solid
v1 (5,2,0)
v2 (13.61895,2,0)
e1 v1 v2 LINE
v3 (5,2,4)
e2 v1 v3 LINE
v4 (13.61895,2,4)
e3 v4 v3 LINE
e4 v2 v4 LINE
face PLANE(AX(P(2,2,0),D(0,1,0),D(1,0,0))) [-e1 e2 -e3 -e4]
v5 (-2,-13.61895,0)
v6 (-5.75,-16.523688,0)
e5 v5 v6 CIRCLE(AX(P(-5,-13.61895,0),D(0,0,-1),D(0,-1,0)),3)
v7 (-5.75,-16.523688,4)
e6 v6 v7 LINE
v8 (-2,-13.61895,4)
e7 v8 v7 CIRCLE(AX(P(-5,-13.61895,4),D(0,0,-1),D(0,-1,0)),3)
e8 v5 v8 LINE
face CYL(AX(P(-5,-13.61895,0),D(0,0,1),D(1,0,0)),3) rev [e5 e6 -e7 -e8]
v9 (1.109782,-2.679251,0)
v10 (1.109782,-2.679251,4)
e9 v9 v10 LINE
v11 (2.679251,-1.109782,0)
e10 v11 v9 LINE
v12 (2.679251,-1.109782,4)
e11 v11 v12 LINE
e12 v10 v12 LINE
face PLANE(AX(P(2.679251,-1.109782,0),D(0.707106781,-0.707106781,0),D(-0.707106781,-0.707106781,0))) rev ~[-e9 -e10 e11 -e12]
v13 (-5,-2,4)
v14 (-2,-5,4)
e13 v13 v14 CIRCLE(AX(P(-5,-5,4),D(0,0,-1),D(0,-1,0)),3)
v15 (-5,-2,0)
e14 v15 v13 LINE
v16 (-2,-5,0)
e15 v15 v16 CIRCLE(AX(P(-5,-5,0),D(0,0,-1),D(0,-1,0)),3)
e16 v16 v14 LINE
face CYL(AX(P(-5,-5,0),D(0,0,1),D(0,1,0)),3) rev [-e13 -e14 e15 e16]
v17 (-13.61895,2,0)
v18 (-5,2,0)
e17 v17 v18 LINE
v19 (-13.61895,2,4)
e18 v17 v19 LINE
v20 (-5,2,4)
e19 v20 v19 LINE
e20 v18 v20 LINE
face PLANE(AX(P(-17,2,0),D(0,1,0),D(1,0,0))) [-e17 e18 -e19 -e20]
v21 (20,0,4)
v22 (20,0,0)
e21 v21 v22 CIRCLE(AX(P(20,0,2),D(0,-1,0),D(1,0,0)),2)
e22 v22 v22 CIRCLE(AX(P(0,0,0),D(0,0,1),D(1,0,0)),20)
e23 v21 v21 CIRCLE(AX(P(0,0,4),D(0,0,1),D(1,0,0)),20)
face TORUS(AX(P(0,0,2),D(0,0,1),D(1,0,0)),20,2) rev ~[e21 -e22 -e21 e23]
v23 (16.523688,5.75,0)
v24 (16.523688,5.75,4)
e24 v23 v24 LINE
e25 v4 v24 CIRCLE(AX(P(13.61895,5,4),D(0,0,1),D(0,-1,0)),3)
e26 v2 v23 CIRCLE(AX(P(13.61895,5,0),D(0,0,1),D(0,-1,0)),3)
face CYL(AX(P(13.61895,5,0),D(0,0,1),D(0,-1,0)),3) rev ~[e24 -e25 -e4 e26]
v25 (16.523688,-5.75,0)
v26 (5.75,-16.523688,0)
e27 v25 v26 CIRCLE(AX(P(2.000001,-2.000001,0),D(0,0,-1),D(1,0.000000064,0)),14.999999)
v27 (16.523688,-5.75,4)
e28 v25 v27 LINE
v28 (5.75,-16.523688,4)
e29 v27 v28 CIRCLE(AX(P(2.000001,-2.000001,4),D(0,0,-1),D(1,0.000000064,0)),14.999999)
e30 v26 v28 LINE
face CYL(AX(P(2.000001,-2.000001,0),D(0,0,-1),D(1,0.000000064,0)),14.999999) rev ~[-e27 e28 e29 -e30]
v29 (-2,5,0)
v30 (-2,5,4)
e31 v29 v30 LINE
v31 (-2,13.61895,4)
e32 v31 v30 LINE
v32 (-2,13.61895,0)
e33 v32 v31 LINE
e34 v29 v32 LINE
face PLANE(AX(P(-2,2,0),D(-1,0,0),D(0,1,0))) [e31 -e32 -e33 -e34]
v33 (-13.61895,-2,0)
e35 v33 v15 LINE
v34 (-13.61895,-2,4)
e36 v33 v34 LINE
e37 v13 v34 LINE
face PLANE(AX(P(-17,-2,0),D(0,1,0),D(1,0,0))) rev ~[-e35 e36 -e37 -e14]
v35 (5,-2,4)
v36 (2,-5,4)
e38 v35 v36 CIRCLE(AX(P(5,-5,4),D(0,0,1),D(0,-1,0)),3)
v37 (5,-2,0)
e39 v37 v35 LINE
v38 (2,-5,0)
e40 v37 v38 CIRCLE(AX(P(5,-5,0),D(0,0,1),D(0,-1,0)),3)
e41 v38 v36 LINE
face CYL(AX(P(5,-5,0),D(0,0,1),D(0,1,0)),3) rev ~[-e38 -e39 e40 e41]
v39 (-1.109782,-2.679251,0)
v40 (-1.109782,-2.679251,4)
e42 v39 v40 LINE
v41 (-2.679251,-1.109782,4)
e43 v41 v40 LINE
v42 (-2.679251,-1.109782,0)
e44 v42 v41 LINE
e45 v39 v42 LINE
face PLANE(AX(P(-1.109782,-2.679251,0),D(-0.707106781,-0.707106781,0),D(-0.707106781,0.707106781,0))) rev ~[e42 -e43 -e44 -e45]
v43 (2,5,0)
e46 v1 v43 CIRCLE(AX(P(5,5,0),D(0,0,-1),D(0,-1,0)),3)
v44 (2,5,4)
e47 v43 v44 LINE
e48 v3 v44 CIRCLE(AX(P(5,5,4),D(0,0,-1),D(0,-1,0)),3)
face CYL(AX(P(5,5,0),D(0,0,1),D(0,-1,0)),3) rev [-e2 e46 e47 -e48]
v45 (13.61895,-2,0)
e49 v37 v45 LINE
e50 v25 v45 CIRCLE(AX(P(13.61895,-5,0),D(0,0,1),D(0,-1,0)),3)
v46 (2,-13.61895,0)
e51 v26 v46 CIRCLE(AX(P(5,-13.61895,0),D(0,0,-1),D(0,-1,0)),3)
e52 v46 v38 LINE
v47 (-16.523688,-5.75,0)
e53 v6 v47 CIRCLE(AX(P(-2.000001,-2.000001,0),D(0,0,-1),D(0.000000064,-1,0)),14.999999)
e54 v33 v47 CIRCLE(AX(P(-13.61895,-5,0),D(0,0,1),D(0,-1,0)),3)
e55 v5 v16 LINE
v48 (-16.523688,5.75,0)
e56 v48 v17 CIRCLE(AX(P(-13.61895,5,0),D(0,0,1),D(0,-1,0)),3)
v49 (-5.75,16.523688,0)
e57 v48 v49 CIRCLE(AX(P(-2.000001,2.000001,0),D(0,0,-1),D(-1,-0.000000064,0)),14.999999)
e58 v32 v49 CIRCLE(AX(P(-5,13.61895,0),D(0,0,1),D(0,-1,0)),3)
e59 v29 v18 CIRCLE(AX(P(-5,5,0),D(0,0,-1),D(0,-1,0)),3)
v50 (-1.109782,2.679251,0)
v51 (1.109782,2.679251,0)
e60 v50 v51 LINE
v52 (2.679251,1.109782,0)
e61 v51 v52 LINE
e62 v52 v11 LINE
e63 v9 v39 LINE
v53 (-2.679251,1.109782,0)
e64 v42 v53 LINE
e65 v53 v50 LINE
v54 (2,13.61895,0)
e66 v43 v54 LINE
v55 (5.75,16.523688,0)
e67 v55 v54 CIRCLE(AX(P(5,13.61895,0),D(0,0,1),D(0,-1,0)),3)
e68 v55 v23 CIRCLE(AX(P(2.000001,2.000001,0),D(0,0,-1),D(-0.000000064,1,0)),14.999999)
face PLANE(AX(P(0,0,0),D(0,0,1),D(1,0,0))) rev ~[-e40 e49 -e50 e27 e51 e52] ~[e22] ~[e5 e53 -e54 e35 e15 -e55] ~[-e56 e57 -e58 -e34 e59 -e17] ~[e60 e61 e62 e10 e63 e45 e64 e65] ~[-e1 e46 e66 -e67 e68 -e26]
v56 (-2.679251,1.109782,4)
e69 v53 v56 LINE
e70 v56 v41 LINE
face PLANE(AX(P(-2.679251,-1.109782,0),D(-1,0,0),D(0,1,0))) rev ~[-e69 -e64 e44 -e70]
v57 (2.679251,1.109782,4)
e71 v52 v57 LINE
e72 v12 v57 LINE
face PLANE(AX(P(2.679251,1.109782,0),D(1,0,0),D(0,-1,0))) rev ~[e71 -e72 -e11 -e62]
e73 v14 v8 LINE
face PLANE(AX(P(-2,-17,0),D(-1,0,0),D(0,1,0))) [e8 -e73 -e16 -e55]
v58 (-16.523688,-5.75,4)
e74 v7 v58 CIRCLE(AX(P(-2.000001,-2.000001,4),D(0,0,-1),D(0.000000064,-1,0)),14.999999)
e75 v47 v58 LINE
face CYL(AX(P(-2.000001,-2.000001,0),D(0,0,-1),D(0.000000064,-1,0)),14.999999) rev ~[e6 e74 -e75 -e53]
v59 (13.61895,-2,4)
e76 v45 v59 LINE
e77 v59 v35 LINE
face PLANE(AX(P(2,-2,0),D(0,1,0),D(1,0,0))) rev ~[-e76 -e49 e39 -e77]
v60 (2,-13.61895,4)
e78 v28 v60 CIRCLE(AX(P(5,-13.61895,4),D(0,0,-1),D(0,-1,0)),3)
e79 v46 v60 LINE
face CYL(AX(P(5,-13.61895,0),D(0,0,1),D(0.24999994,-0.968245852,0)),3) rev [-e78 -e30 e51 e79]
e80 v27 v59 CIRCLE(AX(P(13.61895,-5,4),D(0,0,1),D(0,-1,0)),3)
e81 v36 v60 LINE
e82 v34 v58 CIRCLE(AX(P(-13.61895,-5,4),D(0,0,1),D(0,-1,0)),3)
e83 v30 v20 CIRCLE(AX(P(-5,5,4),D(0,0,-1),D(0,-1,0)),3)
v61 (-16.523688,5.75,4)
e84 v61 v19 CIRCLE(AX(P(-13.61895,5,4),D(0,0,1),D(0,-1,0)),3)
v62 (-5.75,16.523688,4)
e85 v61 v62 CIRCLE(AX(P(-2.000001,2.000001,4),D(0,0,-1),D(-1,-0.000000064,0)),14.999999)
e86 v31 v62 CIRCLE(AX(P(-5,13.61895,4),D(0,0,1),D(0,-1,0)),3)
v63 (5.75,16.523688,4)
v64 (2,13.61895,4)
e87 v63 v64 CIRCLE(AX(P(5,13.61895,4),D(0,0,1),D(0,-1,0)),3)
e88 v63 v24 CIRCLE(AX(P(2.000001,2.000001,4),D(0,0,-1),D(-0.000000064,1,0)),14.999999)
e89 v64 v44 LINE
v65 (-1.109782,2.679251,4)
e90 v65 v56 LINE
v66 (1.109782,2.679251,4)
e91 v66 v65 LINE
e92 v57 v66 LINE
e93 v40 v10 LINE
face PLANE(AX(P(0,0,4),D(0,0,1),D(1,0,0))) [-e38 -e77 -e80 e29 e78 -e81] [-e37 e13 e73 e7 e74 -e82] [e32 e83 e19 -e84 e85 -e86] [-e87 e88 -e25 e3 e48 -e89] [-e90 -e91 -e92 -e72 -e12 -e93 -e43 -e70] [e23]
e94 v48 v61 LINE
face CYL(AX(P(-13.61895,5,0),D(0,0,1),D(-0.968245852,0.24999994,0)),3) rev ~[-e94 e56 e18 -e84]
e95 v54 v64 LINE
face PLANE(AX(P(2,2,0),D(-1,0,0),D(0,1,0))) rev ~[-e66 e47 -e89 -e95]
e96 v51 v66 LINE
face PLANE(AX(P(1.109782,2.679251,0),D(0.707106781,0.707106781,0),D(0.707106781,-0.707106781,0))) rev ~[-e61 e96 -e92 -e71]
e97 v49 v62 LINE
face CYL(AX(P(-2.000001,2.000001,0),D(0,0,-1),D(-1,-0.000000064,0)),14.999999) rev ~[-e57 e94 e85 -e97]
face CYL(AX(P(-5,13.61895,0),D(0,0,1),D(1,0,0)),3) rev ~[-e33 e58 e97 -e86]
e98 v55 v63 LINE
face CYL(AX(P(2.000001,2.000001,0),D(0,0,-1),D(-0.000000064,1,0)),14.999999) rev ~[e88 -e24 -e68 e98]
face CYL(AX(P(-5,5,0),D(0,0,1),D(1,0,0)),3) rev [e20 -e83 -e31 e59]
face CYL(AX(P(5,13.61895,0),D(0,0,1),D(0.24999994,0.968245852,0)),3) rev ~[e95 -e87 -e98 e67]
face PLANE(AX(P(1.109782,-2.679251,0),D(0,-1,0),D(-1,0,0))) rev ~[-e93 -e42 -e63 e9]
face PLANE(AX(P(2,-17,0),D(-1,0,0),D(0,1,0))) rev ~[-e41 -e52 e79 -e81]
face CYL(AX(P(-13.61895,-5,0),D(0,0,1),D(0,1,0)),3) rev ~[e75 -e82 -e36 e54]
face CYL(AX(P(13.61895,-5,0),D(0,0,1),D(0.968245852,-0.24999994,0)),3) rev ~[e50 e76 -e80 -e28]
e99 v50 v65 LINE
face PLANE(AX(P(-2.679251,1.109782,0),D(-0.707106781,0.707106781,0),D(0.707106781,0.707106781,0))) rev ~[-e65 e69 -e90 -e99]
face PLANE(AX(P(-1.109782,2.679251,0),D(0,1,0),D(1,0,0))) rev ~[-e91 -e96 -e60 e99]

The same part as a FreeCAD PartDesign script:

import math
import FreeCAD as App
import Part
import Sketcher

V = App.Vector


def edges_at(feature, points):
    """Names of the edges that pass closest to the given points."""
    edges = feature.Shape.Edges
    near = lambda p: min(range(len(edges)), key=lambda i: edges[i].distToShape(Part.Vertex(*p))[0])
    return sorted({f"Edge{near(p) + 1}" for p in points})

doc = App.newDocument("Part")
body = doc.addObject("PartDesign::Body", "Body")

# Sketch on XZ plane
sketch1 = doc.addObject("Sketcher::SketchObject", "Sketch")
body.addObject(sketch1)
sketch1.AttachmentSupport = (doc.XZ_Plane, [""])
sketch1.MapMode = "FlatFace"
sketch1.addGeometry(Part.Circle(V(20, 2, 0), V(0, 0, 1), 2), False)
sketch1.addConstraint([
    Sketcher.Constraint("Diameter", 0, 4.0),
    Sketcher.Constraint("DistanceX", -1, 1, 0, 3, 20.0),
    Sketcher.Constraint("DistanceY", -1, 1, 0, 3, 2.0),
])
revolution = doc.addObject("PartDesign::Revolution", "Revolution")
body.addObject(revolution)
revolution.Profile = sketch1
revolution.ReferenceAxis = (sketch1, ["V_Axis"])
revolution.Angle = 360
body2 = doc.addObject("PartDesign::Body", "Body001")

# Sketch on XY plane
sketch2 = doc.addObject("Sketcher::SketchObject", "Sketch001")
body2.addObject(sketch2)
sketch2.AttachmentSupport = (doc.getObject("XY_Plane001"), [""])
sketch2.MapMode = "FlatFace"
sketch2.addGeometry(Part.Circle(V(0, 0, 0), V(0, 0, 1), 20), False)
sketch2.addConstraint([
    Sketcher.Constraint("Coincident", 0, 3, -1, 1),
    Sketcher.Constraint("Diameter", 0, 40.0),
])
pad1 = doc.addObject("PartDesign::Pad", "Pad")
body2.addObject(pad1)
pad1.Profile = sketch2
pad1.Length = 4

# Sketch on XY plane
sketch3 = doc.addObject("Sketcher::SketchObject", "Sketch002")
body2.addObject(sketch3)
sketch3.AttachmentSupport = (doc.getObject("XY_Plane001"), [""])
sketch3.MapMode = "FlatFace"
sketch3.addGeometry([
    Part.LineSegment(V(2, -17, 0), V(2, -2, 0)),  # 0
    Part.LineSegment(V(2, -2, 0), V(17, -2, 0)),  # 1
    Part.ArcOfCircle(Part.Circle(V(2, -2, 0), V(0, 0, 1), 15), math.radians(-90), math.radians(0)),  # 2
    Part.LineSegment(V(-2, -2, 0), V(-2, -17, 0)),  # 3
    Part.ArcOfCircle(Part.Circle(V(-2, -2, 0), V(0, 0, 1), 15), math.radians(180), math.radians(270)),  # 4
    Part.LineSegment(V(-17, -2, 0), V(-2, -2, 0)),  # 5
    Part.LineSegment(V(17, 2, 0), V(2, 2, 0)),  # 6
    Part.LineSegment(V(2, 2, 0), V(2, 17, 0)),  # 7
    Part.ArcOfCircle(Part.Circle(V(2, 2, 0), V(0, 0, 1), 15), math.radians(0), math.radians(90)),  # 8
    Part.LineSegment(V(-2, 17, 0), V(-2, 2, 0)),  # 9
    Part.LineSegment(V(-2, 2, 0), V(-17, 2, 0)),  # 10
    Part.ArcOfCircle(Part.Circle(V(-2, 2, 0), V(0, 0, 1), 15), math.radians(90), math.radians(180)),  # 11
], False)
sketch3.addConstraint([
    Sketcher.Constraint("Coincident", 0, 2, 1, 1),
    Sketcher.Constraint("Coincident", 1, 2, 2, 2),
    Sketcher.Constraint("Coincident", 2, 1, 0, 1),
    Sketcher.Constraint("Coincident", 3, 2, 4, 2),
    Sketcher.Constraint("Coincident", 4, 1, 5, 1),
    Sketcher.Constraint("Coincident", 5, 2, 3, 1),
    Sketcher.Constraint("Coincident", 6, 2, 7, 1),
    Sketcher.Constraint("Coincident", 7, 2, 8, 2),
    Sketcher.Constraint("Coincident", 8, 1, 6, 1),
    Sketcher.Constraint("Coincident", 9, 2, 10, 1),
    Sketcher.Constraint("Coincident", 10, 2, 11, 2),
    Sketcher.Constraint("Coincident", 11, 1, 9, 1),
    Sketcher.Constraint("Vertical", 0),
    Sketcher.Constraint("Horizontal", 1),
    Sketcher.Constraint("Vertical", 3),
    Sketcher.Constraint("Horizontal", 5),
    Sketcher.Constraint("Horizontal", 6),
    Sketcher.Constraint("Vertical", 7),
    Sketcher.Constraint("Vertical", 9),
    Sketcher.Constraint("Horizontal", 10),
    Sketcher.Constraint("Coincident", 0, 2, 2, 3),
    Sketcher.Constraint("Coincident", 5, 2, 4, 3),
    Sketcher.Constraint("Coincident", 6, 2, 8, 3),
    Sketcher.Constraint("Coincident", 9, 2, 11, 3),
    Sketcher.Constraint("Equal", 2, 4),
    Sketcher.Constraint("Equal", 4, 8),
    Sketcher.Constraint("Equal", 8, 11),
    Sketcher.Constraint("Symmetric", 4, 3, 8, 3, -1, 1),
    Sketcher.Constraint("Symmetric", 2, 3, 11, 3, -1, 1),
    Sketcher.Constraint("Symmetric", 2, 3, 4, 3, -2),
    Sketcher.Constraint("Radius", 2, 14.999999),
    Sketcher.Constraint("DistanceX", -1, 1, 2, 3, 2.000001),
    Sketcher.Constraint("DistanceY", 2, 3, -1, 1, 2.000001),
])
pocket1 = doc.addObject("PartDesign::Pocket", "Pocket")
body2.addObject(pocket1)
pocket1.Profile = sketch3
pocket1.Type = "ThroughAll"
pocket1.Reversed = True
doc.recompute()

fillet = doc.addObject("PartDesign::Fillet", "Fillet")
body2.addObject(fillet)
fillet.Base = (pocket1, edges_at(pocket1, [(-2, -17, 2)]))
fillet.Radius = 3
doc.recompute()

fillet2 = doc.addObject("PartDesign::Fillet", "Fillet001")
body2.addObject(fillet2)
fillet2.Base = (fillet, edges_at(fillet, [
    (-17, 2, 2),
    (2, -17, 2),
    (17, -2, 2),
    (-17, -2, 2),
    (-2, 17, 2),
    (2, 17, 2),
    (17, 2, 2),
]))
fillet2.Radius = 3
doc.recompute()

fillet3 = doc.addObject("PartDesign::Fillet", "Fillet002")
body2.addObject(fillet3)
fillet3.Base = (fillet2, edges_at(fillet2, [
    (2, -2, 2),
    (2, 2, 2),
    (-2, 2, 2),
    (-2, -2, 2),
]))
fillet3.Radius = 3
doc.recompute()

boolean = doc.addObject("PartDesign::Boolean", "Boolean")
body2.addObject(boolean)
boolean.Type = "Cut"
boolean.addObjects([body])

# Sketch on XY plane
sketch4 = doc.addObject("Sketcher::SketchObject", "Sketch003")
body2.addObject(sketch4)
sketch4.AttachmentSupport = (doc.getObject("XY_Plane001"), [""])
sketch4.MapMode = "FlatFace"
sketch4.addGeometry([
    Part.LineSegment(V(1.1, 2.7, 0), V(2.7, 1.1, 0)),  # 0
    Part.LineSegment(V(2.7, 1.1, 0), V(2.7, -1.1, 0)),  # 1
    Part.LineSegment(V(2.7, -1.1, 0), V(1.1, -2.7, 0)),  # 2
    Part.LineSegment(V(1.1, -2.7, 0), V(-1.1, -2.7, 0)),  # 3
    Part.LineSegment(V(-1.1, -2.7, 0), V(-2.7, -1.1, 0)),  # 4
    Part.LineSegment(V(-2.7, -1.1, 0), V(-2.7, 1.1, 0)),  # 5
    Part.LineSegment(V(-2.7, 1.1, 0), V(-1.1, 2.7, 0)),  # 6
    Part.LineSegment(V(-1.1, 2.7, 0), V(1.1, 2.7, 0)),  # 7
], False)
sketch4.addConstraint([
    Sketcher.Constraint("Coincident", 0, 2, 1, 1),
    Sketcher.Constraint("Coincident", 1, 2, 2, 1),
    Sketcher.Constraint("Coincident", 2, 2, 3, 1),
    Sketcher.Constraint("Coincident", 3, 2, 4, 1),
    Sketcher.Constraint("Coincident", 4, 2, 5, 1),
    Sketcher.Constraint("Coincident", 5, 2, 6, 1),
    Sketcher.Constraint("Coincident", 6, 2, 7, 1),
    Sketcher.Constraint("Coincident", 7, 2, 0, 1),
    Sketcher.Constraint("Vertical", 1),
    Sketcher.Constraint("Horizontal", 3),
    Sketcher.Constraint("Vertical", 5),
    Sketcher.Constraint("Horizontal", 7),
    Sketcher.Constraint("Symmetric", 0, 2, 4, 2, -1, 1),
    Sketcher.Constraint("Symmetric", 2, 2, 6, 2, -1, 1),
    Sketcher.Constraint("Perpendicular", 0, 2),
    Sketcher.Constraint("Perpendicular", 2, 4),
    Sketcher.Constraint("Perpendicular", 4, 6),
    Sketcher.Constraint("Horizontal", 1, 2, 4, 2),
    Sketcher.Constraint("Vertical", 3, 2, 6, 2),
    Sketcher.Constraint("Equal", 7, 1),
    Sketcher.Constraint("DistanceX", 4, 2, 1, 2, 5.358502),
    Sketcher.Constraint("DistanceX", 3, 2, 3, 1, 2.219564),
])
pocket2 = doc.addObject("PartDesign::Pocket", "Pocket001")
body2.addObject(pocket2)
pocket2.Profile = sketch4
pocket2.Length = 5
pocket2.Reversed = True

doc.recompute()
